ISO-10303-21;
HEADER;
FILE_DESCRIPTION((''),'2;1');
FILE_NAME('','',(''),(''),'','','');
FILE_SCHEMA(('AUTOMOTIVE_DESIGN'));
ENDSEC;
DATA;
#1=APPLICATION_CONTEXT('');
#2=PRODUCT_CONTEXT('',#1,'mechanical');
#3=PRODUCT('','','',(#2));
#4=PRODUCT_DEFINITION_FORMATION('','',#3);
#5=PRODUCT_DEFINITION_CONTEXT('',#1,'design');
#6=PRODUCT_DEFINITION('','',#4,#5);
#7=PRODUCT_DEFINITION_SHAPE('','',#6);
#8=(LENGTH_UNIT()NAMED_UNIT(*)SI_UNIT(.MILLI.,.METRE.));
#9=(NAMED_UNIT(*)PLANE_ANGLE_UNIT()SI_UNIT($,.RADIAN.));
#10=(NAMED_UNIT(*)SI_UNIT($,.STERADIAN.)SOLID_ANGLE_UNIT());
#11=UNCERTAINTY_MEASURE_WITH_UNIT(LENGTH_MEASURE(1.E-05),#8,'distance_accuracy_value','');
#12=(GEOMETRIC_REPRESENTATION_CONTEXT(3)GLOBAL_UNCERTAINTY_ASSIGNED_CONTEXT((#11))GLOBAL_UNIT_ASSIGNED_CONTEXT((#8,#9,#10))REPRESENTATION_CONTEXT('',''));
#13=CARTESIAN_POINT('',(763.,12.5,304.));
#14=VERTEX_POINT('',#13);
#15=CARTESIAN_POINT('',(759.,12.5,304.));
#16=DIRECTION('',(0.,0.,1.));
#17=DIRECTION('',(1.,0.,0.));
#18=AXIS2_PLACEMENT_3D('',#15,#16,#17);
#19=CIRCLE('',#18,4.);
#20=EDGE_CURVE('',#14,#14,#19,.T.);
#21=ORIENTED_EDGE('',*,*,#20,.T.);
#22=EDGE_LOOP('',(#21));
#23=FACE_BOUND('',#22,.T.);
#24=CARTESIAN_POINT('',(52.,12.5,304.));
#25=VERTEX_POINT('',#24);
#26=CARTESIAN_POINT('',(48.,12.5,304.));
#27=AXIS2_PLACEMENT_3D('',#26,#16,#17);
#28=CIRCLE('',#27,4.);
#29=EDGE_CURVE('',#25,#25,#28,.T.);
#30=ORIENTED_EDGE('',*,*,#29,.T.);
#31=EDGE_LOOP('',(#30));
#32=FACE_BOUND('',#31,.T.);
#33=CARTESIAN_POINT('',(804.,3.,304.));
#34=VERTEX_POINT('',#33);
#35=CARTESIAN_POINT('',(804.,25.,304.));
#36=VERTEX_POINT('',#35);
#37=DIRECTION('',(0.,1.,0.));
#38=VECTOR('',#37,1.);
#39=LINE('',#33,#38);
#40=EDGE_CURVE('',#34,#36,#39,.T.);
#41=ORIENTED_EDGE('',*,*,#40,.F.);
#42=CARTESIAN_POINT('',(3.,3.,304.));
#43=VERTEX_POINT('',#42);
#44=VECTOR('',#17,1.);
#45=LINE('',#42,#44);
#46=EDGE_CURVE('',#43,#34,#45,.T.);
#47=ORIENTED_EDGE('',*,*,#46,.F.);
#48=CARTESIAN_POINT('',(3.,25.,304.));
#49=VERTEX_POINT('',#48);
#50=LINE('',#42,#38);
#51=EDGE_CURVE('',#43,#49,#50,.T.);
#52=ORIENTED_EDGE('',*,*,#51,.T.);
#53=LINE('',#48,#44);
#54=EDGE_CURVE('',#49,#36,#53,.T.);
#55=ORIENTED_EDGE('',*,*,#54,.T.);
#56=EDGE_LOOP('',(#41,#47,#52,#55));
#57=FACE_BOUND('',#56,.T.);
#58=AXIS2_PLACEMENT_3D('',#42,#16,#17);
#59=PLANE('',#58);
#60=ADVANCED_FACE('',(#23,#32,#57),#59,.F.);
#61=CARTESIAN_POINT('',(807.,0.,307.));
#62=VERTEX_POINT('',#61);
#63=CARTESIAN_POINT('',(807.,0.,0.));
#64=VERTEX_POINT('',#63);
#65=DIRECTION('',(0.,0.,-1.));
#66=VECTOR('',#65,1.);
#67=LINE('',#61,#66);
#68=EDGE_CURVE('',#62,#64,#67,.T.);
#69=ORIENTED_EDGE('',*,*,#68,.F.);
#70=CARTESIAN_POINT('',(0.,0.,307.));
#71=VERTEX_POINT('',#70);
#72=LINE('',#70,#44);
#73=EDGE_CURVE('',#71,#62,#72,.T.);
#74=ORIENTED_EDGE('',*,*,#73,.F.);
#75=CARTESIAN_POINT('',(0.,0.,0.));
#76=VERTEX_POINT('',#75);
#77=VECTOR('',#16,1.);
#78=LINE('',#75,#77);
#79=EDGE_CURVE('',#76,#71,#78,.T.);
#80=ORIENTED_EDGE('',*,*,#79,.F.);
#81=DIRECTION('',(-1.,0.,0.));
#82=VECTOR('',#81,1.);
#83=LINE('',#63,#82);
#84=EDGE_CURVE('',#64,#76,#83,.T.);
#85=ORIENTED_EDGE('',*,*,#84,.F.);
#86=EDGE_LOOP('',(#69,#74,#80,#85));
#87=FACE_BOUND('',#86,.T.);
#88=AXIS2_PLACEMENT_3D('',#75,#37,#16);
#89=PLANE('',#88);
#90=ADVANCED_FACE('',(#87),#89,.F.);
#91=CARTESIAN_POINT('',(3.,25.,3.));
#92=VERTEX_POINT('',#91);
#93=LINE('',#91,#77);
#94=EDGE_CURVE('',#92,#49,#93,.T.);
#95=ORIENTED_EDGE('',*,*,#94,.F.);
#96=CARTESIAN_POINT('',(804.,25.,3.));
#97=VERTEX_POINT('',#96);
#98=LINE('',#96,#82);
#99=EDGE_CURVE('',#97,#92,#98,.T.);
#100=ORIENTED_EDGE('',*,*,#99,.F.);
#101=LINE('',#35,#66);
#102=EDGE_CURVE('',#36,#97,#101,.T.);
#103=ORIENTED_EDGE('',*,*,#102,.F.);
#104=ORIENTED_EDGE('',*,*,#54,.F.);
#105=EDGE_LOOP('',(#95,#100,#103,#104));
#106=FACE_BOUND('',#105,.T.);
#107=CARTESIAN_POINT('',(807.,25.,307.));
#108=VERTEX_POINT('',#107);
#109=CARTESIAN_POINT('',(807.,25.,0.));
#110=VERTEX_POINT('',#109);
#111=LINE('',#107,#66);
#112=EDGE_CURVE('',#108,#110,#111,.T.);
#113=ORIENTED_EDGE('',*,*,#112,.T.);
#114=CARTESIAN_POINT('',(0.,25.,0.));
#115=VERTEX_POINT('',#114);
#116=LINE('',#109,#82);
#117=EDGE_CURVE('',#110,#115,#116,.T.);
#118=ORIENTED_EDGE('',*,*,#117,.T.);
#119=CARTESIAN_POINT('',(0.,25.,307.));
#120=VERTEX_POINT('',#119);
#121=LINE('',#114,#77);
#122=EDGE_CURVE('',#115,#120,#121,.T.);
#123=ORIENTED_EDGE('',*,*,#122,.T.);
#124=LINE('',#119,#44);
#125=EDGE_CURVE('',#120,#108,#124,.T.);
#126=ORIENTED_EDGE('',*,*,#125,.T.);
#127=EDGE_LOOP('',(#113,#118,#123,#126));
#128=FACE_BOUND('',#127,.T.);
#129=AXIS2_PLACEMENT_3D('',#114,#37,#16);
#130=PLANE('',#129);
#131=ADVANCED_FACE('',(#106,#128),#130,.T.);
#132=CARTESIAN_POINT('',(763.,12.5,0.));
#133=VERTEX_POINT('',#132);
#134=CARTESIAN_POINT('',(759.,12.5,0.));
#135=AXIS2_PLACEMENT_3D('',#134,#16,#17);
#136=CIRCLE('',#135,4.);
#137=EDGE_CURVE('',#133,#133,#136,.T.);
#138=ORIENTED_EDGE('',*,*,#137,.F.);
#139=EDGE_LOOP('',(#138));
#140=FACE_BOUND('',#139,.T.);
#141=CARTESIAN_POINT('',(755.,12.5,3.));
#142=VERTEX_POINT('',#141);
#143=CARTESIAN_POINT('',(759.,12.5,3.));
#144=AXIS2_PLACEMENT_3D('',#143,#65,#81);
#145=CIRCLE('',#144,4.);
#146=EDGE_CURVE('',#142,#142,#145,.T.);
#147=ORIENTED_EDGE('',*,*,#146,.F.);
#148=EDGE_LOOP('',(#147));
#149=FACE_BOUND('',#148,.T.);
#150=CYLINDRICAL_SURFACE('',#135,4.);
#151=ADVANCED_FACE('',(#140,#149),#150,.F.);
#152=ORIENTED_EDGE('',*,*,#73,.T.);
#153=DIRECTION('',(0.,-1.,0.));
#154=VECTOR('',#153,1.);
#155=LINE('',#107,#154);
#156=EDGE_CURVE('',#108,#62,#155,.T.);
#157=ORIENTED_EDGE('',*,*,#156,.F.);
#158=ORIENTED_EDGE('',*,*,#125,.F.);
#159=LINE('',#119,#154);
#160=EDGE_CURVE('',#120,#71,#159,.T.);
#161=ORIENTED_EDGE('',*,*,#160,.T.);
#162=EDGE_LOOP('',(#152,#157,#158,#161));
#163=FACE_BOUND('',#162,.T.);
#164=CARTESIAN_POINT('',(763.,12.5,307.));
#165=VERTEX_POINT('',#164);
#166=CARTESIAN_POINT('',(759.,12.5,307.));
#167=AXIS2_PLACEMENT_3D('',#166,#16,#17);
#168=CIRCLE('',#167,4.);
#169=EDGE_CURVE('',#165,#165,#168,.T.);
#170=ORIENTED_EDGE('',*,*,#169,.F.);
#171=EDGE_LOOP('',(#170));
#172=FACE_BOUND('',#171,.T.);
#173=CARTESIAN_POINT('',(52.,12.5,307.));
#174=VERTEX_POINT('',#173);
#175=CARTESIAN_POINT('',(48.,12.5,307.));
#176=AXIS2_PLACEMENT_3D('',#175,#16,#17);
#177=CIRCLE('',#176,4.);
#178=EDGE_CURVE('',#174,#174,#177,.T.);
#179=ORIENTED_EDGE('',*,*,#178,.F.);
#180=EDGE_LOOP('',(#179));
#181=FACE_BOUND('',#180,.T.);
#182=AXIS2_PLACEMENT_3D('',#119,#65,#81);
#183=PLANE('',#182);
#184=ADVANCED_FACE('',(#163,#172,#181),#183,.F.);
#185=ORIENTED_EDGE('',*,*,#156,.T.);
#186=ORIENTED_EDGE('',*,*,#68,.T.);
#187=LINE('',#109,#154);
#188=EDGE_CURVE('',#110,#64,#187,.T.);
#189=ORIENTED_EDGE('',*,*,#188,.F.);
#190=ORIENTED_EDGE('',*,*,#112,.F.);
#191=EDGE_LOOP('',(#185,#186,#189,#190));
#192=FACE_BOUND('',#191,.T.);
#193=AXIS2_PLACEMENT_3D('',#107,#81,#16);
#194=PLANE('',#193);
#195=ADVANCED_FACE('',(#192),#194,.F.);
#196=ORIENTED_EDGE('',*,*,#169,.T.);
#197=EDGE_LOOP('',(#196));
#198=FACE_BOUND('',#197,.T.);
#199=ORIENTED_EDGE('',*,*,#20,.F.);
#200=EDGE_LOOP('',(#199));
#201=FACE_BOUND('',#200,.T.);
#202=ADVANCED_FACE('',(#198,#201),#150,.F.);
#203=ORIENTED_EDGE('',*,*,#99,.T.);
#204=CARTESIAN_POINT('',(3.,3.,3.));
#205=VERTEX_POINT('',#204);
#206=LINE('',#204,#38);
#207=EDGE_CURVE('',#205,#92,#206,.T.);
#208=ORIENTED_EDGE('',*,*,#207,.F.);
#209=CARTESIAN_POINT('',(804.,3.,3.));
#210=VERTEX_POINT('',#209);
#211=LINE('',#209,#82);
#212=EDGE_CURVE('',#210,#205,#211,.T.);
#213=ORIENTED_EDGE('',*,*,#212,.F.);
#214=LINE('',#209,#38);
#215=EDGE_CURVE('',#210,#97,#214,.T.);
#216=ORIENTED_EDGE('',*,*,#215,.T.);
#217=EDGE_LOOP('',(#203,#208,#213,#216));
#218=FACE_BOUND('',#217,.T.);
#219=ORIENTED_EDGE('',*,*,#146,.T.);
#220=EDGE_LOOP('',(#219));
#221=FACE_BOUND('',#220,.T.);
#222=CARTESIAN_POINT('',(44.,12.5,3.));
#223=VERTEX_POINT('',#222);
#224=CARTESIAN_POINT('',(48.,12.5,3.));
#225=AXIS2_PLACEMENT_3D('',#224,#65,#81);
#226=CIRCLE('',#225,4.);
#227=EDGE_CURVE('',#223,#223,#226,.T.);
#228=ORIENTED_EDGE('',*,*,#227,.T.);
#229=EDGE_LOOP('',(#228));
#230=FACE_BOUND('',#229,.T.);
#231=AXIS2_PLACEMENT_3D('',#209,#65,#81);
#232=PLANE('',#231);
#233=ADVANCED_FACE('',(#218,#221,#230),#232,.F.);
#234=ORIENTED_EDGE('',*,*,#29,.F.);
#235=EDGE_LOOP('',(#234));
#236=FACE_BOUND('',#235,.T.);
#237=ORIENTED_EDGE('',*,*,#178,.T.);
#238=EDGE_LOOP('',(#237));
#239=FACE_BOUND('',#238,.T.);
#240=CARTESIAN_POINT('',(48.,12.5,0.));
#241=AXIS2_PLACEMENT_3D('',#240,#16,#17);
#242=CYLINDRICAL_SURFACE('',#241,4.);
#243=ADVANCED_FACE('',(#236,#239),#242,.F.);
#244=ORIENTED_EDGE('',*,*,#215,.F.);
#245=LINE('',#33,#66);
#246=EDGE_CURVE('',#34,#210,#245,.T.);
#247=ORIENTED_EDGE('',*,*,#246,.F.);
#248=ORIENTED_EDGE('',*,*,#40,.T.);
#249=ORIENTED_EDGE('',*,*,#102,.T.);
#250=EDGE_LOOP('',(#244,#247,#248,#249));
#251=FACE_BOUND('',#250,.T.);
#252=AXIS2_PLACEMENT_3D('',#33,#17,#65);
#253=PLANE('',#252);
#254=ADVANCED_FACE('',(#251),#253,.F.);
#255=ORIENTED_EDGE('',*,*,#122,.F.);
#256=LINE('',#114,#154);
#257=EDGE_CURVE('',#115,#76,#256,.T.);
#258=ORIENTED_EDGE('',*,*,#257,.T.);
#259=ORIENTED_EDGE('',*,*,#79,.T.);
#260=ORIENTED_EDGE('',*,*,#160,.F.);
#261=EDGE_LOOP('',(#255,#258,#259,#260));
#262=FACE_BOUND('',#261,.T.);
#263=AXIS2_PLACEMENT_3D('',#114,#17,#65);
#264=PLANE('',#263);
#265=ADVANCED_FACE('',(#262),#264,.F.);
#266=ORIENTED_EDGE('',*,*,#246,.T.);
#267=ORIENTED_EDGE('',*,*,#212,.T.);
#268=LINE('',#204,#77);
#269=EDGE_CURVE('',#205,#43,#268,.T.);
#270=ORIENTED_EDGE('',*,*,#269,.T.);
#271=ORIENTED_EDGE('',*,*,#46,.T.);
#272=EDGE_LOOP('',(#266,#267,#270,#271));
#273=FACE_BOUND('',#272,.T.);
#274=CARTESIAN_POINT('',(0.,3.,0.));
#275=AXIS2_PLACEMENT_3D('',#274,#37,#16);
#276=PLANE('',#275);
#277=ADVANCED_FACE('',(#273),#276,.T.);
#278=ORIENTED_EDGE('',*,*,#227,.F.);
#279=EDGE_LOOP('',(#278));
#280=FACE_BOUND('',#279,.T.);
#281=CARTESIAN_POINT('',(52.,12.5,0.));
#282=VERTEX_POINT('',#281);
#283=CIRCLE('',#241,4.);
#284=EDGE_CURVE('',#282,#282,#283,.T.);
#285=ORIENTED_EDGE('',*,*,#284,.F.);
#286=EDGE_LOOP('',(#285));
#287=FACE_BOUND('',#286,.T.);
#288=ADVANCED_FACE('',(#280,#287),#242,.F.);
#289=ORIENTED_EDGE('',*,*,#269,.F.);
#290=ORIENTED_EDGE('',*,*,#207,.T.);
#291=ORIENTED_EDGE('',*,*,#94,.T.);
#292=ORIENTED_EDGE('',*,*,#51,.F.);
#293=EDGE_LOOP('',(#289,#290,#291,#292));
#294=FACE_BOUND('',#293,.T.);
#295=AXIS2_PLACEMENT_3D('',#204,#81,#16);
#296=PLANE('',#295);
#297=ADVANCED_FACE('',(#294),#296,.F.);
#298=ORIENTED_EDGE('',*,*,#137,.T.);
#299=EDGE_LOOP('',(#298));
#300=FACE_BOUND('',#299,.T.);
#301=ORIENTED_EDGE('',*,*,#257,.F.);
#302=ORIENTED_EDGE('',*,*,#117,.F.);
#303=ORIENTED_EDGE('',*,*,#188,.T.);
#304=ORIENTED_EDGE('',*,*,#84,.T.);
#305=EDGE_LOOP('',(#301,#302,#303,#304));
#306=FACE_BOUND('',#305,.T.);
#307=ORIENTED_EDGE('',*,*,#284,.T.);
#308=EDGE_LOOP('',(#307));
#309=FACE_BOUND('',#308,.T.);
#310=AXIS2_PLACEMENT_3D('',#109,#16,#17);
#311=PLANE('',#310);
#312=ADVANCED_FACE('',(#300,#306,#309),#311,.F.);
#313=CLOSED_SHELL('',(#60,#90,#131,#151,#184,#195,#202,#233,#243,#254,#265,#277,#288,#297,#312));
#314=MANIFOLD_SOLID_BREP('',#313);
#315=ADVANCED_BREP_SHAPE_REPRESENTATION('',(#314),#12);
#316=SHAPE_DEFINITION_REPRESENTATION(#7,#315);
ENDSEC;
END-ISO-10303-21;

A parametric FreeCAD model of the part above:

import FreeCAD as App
import Part
import Sketcher

V = App.Vector
Q = App.Units.Quantity

doc = App.newDocument("Part")
params = doc.addObject("Spreadsheet::Sheet", "Params")
for row, (alias, value) in enumerate([
    ("sketch1_width", "807 mm"),
    ("sketch1_height", "307 mm"),
    ("pad1_length", "25 mm"),
    ("sketch2_width", "801 mm"),
    ("sketch2_height", "301 mm"),
    ("pocket1_length", "22 mm"),
    ("sketch3_diameter", "8 mm"),
], start=1):
    params.set(f"A{row}", alias)
    params.set(f"B{row}", "=" + value)
    params.setAlias(f"B{row}", alias)

body = doc.addObject("PartDesign::Body", "Body")

# Sketch on XZ plane
sketch1 = doc.addObject("Sketcher::SketchObject", "Sketch")
body.addObject(sketch1)
sketch1.AttachmentSupport = (doc.XZ_Plane, [""])
sketch1.MapMode = "FlatFace"
sketch1.addGeometry([
    Part.LineSegment(V(0, 0, 0), V(0, 307, 0)),
    Part.LineSegment(V(0, 307, 0), V(807, 307, 0)),
    Part.LineSegment(V(807, 307, 0), V(807, 0, 0)),
    Part.LineSegment(V(807, 0, 0), V(0, 0, 0)),
], False)
sketch1.addConstraint([
    Sketcher.Constraint("Coincident", 0, 2, 1, 1),
    Sketcher.Constraint("Coincident", 1, 2, 2, 1),
    Sketcher.Constraint("Coincident", 2, 2, 3, 1),
    Sketcher.Constraint("Coincident", 3, 2, 0, 1),
    Sketcher.Constraint("Vertical", 0),
    Sketcher.Constraint("Horizontal", 1),
    Sketcher.Constraint("Vertical", 2),
    Sketcher.Constraint("Horizontal", 3),
    Sketcher.Constraint("Coincident", 3, 2, -1, 1),
    Sketcher.Constraint("DistanceX", 1, 1, 1, 2, Q("807 mm")),
    Sketcher.Constraint("DistanceY", 0, 1, 0, 2, Q("307 mm")),
])
sketch1.setExpression("Constraints[9]", "Params.sketch1_width")
sketch1.setExpression("Constraints[10]", "Params.sketch1_height")
pad1 = doc.addObject("PartDesign::Pad", "Pad")
body.addObject(pad1)
pad1.Profile = sketch1
pad1.setExpression("Length", "Params.pad1_length")
pad1.Reversed = True

# Sketch on XZ plane
sketch2 = doc.addObject("Sketcher::SketchObject", "Sketch001")
body.addObject(sketch2)
sketch2.AttachmentSupport = (doc.XZ_Plane, [""])
sketch2.MapMode = "FlatFace"
sketch2.AttachmentOffset = App.Placement(V(0, 0, -25), App.Rotation())
sketch2.addGeometry([
    Part.LineSegment(V(3, 3, 0), V(3, 304, 0)),
    Part.LineSegment(V(3, 304, 0), V(804, 304, 0)),
    Part.LineSegment(V(804, 304, 0), V(804, 3, 0)),
    Part.LineSegment(V(804, 3, 0), V(3, 3, 0)),
], False)
sketch2.addConstraint([
    Sketcher.Constraint("Coincident", 0, 2, 1, 1),
    Sketcher.Constraint("Coincident", 1, 2, 2, 1),
    Sketcher.Constraint("Coincident", 2, 2, 3, 1),
    Sketcher.Constraint("Coincident", 3, 2, 0, 1),
    Sketcher.Constraint("Vertical", 0),
    Sketcher.Constraint("Horizontal", 1),
    Sketcher.Constraint("Vertical", 2),
    Sketcher.Constraint("Horizontal", 3),
    Sketcher.Constraint("DistanceX", 1, 1, 1, 2, Q("801 mm")),
    Sketcher.Constraint("DistanceY", 0, 1, 0, 2, Q("301 mm")),
    Sketcher.Constraint("DistanceX", -1, 1, 0, 2, Q("3 mm")),
    Sketcher.Constraint("DistanceY", -1, 1, 0, 2, Q("304 mm")),
])
sketch2.setExpression("Constraints[8]", "Params.sketch2_width")
sketch2.setExpression("Constraints[9]", "Params.sketch2_height")
pocket1 = doc.addObject("PartDesign::Pocket", "Pocket")
body.addObject(pocket1)
pocket1.Profile = sketch2
pocket1.setExpression("Length", "Params.pocket1_length")
pocket1.Reversed = True

# Sketch on XY plane
sketch3 = doc.addObject("Sketcher::SketchObject", "Sketch002")
body.addObject(sketch3)
sketch3.AttachmentSupport = (doc.XY_Plane, [""])
sketch3.MapMode = "FlatFace"
sketch3.AttachmentOffset = App.Placement(V(0, 0, 307), App.Rotation())
sketch3.addGeometry([
    Part.Circle(V(759, 12.5, 0), V(0, 0, 1), 4),
    Part.Circle(V(48, 12.5, 0), V(0, 0, 1), 4),
], False)
sketch3.addConstraint([
    Sketcher.Constraint("Equal", 0, 1),
    Sketcher.Constraint("Horizontal", 0, 3, 1, 3),
    Sketcher.Constraint("Diameter", 0, Q("8 mm")),
    Sketcher.Constraint("DistanceX", -1, 1, 0, 3, Q("759 mm")),
    Sketcher.Constraint("DistanceX", -1, 1, 1, 3, Q("48 mm")),
    Sketcher.Constraint("DistanceY", -1, 1, 0, 3, Q("12.5 mm")),
])
sketch3.setExpression("Constraints[2]", "Params.sketch3_diameter")
pocket2 = doc.addObject("PartDesign::Pocket", "Pocket001")
body.addObject(pocket2)
pocket2.Profile = sketch3
pocket2.Type = "ThroughAll"

doc.recompute()
